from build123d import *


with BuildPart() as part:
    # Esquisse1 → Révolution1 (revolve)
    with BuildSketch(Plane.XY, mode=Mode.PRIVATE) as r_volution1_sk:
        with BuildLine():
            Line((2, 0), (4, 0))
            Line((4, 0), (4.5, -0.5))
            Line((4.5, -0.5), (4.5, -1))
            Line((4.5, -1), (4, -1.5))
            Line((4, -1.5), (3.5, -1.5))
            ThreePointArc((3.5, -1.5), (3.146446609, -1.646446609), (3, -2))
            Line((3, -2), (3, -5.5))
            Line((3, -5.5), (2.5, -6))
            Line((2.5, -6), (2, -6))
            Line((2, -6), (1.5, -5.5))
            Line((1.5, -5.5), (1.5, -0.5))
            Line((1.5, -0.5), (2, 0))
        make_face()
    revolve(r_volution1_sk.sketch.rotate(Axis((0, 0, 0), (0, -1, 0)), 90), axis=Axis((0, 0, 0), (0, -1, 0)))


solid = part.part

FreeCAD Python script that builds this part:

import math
import FreeCAD as App
import Part
import Sketcher

doc = App.newDocument("Part")
body = doc.addObject("PartDesign::Body", "Body")

# Sketch on XY plane
sketch1 = doc.addObject("Sketcher::SketchObject", "Sketch")
body.addObject(sketch1)
sketch1.AttachmentSupport = (doc.XY_Plane, [""])
sketch1.MapMode = "FlatFace"
sketch1.addGeometry([
    Part.LineSegment(App.Vector(4, 0, 0), App.Vector(2, 0, 0)),  # 0
    Part.LineSegment(App.Vector(2, 0, 0), App.Vector(1.5, -0.5, 0)),  # 1
    Part.LineSegment(App.Vector(1.5, -0.5, 0), App.Vector(1.5, -5.5, 0)),  # 2
    Part.LineSegment(App.Vector(1.5, -5.5, 0), App.Vector(2, -6, 0)),  # 3
    Part.LineSegment(App.Vector(2, -6, 0), App.Vector(2.5, -6, 0)),  # 4
    Part.LineSegment(App.Vector(2.5, -6, 0), App.Vector(3, -5.5, 0)),  # 5
    Part.LineSegment(App.Vector(3, -5.5, 0), App.Vector(3, -2, 0)),  # 6
    Part.ArcOfCircle(Part.Circle(App.Vector(3.5, -2, 0), App.Vector(0, 0, 1), 0.5), math.radians(90), math.radians(180)),  # 7
    Part.LineSegment(App.Vector(3.5, -1.5, 0), App.Vector(4, -1.5, 0)),  # 8
    Part.LineSegment(App.Vector(4, -1.5, 0), App.Vector(4.5, -1, 0)),  # 9
    Part.LineSegment(App.Vector(4.5, -1, 0), App.Vector(4.5, -0.5, 0)),  # 10
    Part.LineSegment(App.Vector(4.5, -0.5, 0), App.Vector(4, 0, 0)),  # 11
], False)
sketch1.addConstraint([
    Sketcher.Constraint("Coincident", 0, 2, 1, 1),
    Sketcher.Constraint("Coincident", 1, 2, 2, 1),
    Sketcher.Constraint("Coincident", 2, 2, 3, 1),
    Sketcher.Constraint("Coincident", 3, 2, 4, 1),
    Sketcher.Constraint("Coincident", 4, 2, 5, 1),
    Sketcher.Constraint("Coincident", 5, 2, 6, 1),
    Sketcher.Constraint("Tangent", 6, 2, 7, 2),
    Sketcher.Constraint("Tangent", 7, 1, 8, 1),
    Sketcher.Constraint("Coincident", 8, 2, 9, 1),
    Sketcher.Constraint("Coincident", 9, 2, 10, 1),
    Sketcher.Constraint("Coincident", 10, 2, 11, 1),
    Sketcher.Constraint("Coincident", 11, 2, 0, 1),
    Sketcher.Constraint("Horizontal", 0),
    Sketcher.Constraint("Vertical", 2),
    Sketcher.Constraint("Horizontal", 4),
    Sketcher.Constraint("Vertical", 6),
    Sketcher.Constraint("Horizontal", 8),
    Sketcher.Constraint("Vertical", 10),
    Sketcher.Constraint("PointOnObject", 0, 2, -1),
    Sketcher.Constraint("Perpendicular", 1, 3),
    Sketcher.Constraint("Perpendicular", 3, 5),
    Sketcher.Constraint("Parallel", 5, 9),
    Sketcher.Constraint("Perpendicular", 9, 11),
    Sketcher.Constraint("Horizontal", 2, 2, 5, 2),
    Sketcher.Constraint("Horizontal", 1, 2, 10, 2),
    Sketcher.Constraint("Vertical", 0, 2, 3, 2),
    Sketcher.Constraint("Vertical", 8, 2, 11, 2),
    Sketcher.Constraint("Equal", 4, 8),
    Sketcher.Constraint("Equal", 8, 10),
    Sketcher.Constraint("Equal", 1, 3),
    Sketcher.Constraint("Radius", 7, 0.5),
    Sketcher.Constraint("DistanceX", 0, 2, 0, 1, 2.0),
    Sketcher.Constraint("DistanceY", 2, 2, 2, 1, 5.0),
    Sketcher.Constraint("DistanceX", 4, 1, 4, 2, 0.5),
    Sketcher.Constraint("DistanceX", -1, 1, 0, 2, 2.0),
])
revolution = doc.addObject("PartDesign::Revolution", "Revolution")
body.addObject(revolution)
revolution.Profile = sketch1
revolution.ReferenceAxis = (sketch1, ["V_Axis"])
revolution.Angle = 360

doc.recompute()
